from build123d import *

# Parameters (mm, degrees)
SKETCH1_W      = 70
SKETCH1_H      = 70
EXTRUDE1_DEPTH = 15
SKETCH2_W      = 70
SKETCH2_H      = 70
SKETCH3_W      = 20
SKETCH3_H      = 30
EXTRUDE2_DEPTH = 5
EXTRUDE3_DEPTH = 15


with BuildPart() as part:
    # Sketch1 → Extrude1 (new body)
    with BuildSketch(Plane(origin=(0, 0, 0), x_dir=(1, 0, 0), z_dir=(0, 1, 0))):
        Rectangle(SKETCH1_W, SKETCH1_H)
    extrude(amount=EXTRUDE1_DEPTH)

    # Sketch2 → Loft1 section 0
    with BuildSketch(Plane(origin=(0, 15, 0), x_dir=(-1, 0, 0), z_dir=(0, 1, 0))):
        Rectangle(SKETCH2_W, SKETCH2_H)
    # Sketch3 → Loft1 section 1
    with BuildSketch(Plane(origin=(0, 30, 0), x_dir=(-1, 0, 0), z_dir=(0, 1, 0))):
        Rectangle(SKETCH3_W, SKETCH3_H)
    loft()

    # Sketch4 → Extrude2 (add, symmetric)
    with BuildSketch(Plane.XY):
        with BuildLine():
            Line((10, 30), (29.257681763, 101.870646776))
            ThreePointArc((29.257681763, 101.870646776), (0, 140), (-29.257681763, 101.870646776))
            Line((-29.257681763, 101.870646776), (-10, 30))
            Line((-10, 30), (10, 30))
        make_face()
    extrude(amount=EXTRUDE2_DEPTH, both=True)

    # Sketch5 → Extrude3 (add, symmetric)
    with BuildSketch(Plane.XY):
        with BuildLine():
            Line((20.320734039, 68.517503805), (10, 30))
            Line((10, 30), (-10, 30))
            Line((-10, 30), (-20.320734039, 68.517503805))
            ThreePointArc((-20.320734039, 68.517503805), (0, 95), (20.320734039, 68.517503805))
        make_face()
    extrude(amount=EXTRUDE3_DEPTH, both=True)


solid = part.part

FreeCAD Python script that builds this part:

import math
import FreeCAD as App
import Part
import Sketcher
from FreeCAD import Vector
Q = App.Units.Quantity


def add_polygon(sketch, points):
    """Adds a closed chain of lines whose ends are joined by coincident constraints."""
    first, n = sketch.GeometryCount, len(points)
    for a, b in zip(points, points[1:] + points[:1]):
        sketch.addGeometry(Part.LineSegment(App.Vector(*a, 0), App.Vector(*b, 0)), False)
    for i in range(n):
        sketch.addConstraint(Sketcher.Constraint("Coincident", first + i, 2, first + (i + 1) % n, 1))

doc = App.newDocument("Part")
params = doc.addObject("Spreadsheet::Sheet", "Params")
for row, (alias, value) in enumerate([
    ("sketch1_width", "70 mm"),
    ("pad1_length", "15 mm"),
    ("sketch2_width", "70 mm"),
    ("sketch3_width", "20 mm"),
    ("sketch3_height", "30 mm"),
    ("sketch4_width", "20 mm"),
    ("pad2_length", "10 mm"),
    ("sketch5_width", "20 mm"),
    ("pad3_length", "30 mm"),
], start=1):
    params.set(f"A{row}", alias)
    params.set(f"B{row}", "=" + value)
    params.setAlias(f"B{row}", alias)

body = doc.addObject("PartDesign::Body", "Body")

# Sketch on XZ plane
sketch1 = body.newObject("Sketcher::SketchObject", "Sketch")
sketch1.AttachmentSupport = (doc.getObject("XZ_Plane"), [""])
sketch1.MapMode = "FlatFace"
add_polygon(sketch1, [(-35, -35), (-35, 35), (35, 35), (35, -35)])  # lines 0-3
sketch1.addConstraint(Sketcher.Constraint("Vertical", 0))
sketch1.addConstraint(Sketcher.Constraint("Horizontal", 1))
sketch1.addConstraint(Sketcher.Constraint("Vertical", 2))
sketch1.addConstraint(Sketcher.Constraint("Horizontal", 3))
sketch1.addConstraint(Sketcher.Constraint("Symmetric", 0, 2, 2, 2, -1, 1))
sketch1.addConstraint(Sketcher.Constraint("Equal", 3, 0))
sketch1.addConstraint(Sketcher.Constraint("DistanceX", 1, 1, 1, 2, 70.0))
sketch1.setExpression("Constraints[10]", "Params.sketch1_width")
pad1 = body.newObject("PartDesign::Pad", "Pad")
pad1.Profile = sketch1
pad1.setExpression("Length", "Params.pad1_length")
pad1.Reversed = True

# Sketch on XZ plane
sketch2 = body.newObject("Sketcher::SketchObject", "Sketch001")
sketch2.AttachmentSupport = (doc.getObject("XZ_Plane"), [""])
sketch2.MapMode = "FlatFace"
sketch2.AttachmentOffset = App.Placement(Vector(0, 0, -15), App.Rotation())
add_polygon(sketch2, [(35, 35), (35, -35), (-35, -35), (-35, 35)])  # lines 0-3
sketch2.addConstraint(Sketcher.Constraint("Vertical", 0))
sketch2.addConstraint(Sketcher.Constraint("Horizontal", 1))
sketch2.addConstraint(Sketcher.Constraint("Vertical", 2))
sketch2.addConstraint(Sketcher.Constraint("Horizontal", 3))
sketch2.addConstraint(Sketcher.Constraint("Symmetric", 0, 2, 2, 2, -1, 1))
sketch2.addConstraint(Sketcher.Constraint("Equal", 3, 0))
sketch2.addConstraint(Sketcher.Constraint("DistanceX", 1, 2, 1, 1, 70.0))
sketch2.setExpression("Constraints[10]", "Params.sketch2_width")

# Sketch on XZ plane
sketch3 = body.newObject("Sketcher::SketchObject", "Sketch002")
sketch3.AttachmentSupport = (doc.getObject("XZ_Plane"), [""])
sketch3.MapMode = "FlatFace"
sketch3.AttachmentOffset = App.Placement(Vector(0, 0, -30), App.Rotation())
add_polygon(sketch3, [(10, 15), (10, -15), (-10, -15), (-10, 15)])  # lines 0-3
sketch3.addConstraint(Sketcher.Constraint("Vertical", 0))
sketch3.addConstraint(Sketcher.Constraint("Horizontal", 1))
sketch3.addConstraint(Sketcher.Constraint("Vertical", 2))
sketch3.addConstraint(Sketcher.Constraint("Horizontal", 3))
sketch3.addConstraint(Sketcher.Constraint("Symmetric", 0, 2, 2, 2, -1, 1))
sketch3.addConstraint(Sketcher.Constraint("DistanceX", 1, 2, 1, 1, 20.0))
sketch3.addConstraint(Sketcher.Constraint("DistanceY", 0, 2, 0, 1, 30.0))
sketch3.setExpression("Constraints[9]", "Params.sketch3_width")
sketch3.setExpression("Constraints[10]", "Params.sketch3_height")

additiveloft = body.newObject("PartDesign::AdditiveLoft", "AdditiveLoft")
additiveloft.Profile = sketch2
additiveloft.Sections = [sketch3]

# Sketch on XY plane
sketch4 = body.newObject("Sketcher::SketchObject", "Sketch003")
sketch4.AttachmentSupport = (doc.getObject("XY_Plane"), [""])
sketch4.MapMode = "FlatFace"
sketch4.addGeometry(Part.LineSegment(Vector(10, 30, 0), Vector(29, 102, 0)), False)
sketch4.addGeometry(Part.ArcOfCircle(Part.Circle(Vector(0, 110, 0), Vector(0, 0, 1), 30), math.radians(-15), math.radians(195)), False)
sketch4.addGeometry(Part.LineSegment(Vector(-29, 102, 0), Vector(-10, 30, 0)), False)
sketch4.addGeometry(Part.LineSegment(Vector(-10, 30, 0), Vector(10, 30, 0)), False)
sketch4.addConstraint(Sketcher.Constraint("Tangent", 0, 2, 1, 1))
sketch4.addConstraint(Sketcher.Constraint("Tangent", 1, 2, 2, 1))
sketch4.addConstraint(Sketcher.Constraint("Coincident", 2, 2, 3, 1))
sketch4.addConstraint(Sketcher.Constraint("Coincident", 3, 2, 0, 1))
sketch4.addConstraint(Sketcher.Constraint("Horizontal", 3))
sketch4.addConstraint(Sketcher.Constraint("Symmetric", 0, 2, 1, 2, -2))
sketch4.addConstraint(Sketcher.Constraint("DistanceX", 3, 1, 3, 2, 20.0))
sketch4.addConstraint(Sketcher.Constraint("Angle", 0, Q("75 deg")))
sketch4.addConstraint(Sketcher.Constraint("DistanceY", -1, 1, 2, 2, 30.0))
sketch4.addConstraint(Sketcher.Constraint("Radius", 1, 30.289781))
sketch4.setExpression("Constraints[6]", "Params.sketch4_width")
pad2 = body.newObject("PartDesign::Pad", "Pad001")
pad2.Profile = sketch4
pad2.setExpression("Length", "Params.pad2_length")
pad2.Midplane = True

# Sketch on XY plane
sketch5 = body.newObject("Sketcher::SketchObject", "Sketch004")
sketch5.AttachmentSupport = (doc.getObject("XY_Plane"), [""])
sketch5.MapMode = "FlatFace"
sketch5.addGeometry(Part.LineSegment(Vector(10, 30, 0), Vector(20, 69, 0)), False)
sketch5.addGeometry(Part.ArcOfCircle(Part.Circle(Vector(0, 74, 0), Vector(0, 0, 1), 21), math.radians(-15), math.radians(195)), False)
sketch5.addGeometry(Part.LineSegment(Vector(-20, 69, 0), Vector(-10, 30, 0)), False)
sketch5.addGeometry(Part.LineSegment(Vector(-10, 30, 0), Vector(10, 30, 0)), False)
sketch5.addConstraint(Sketcher.Constraint("Tangent", 0, 2, 1, 1))
sketch5.addConstraint(Sketcher.Constraint("Tangent", 1, 2, 2, 1))
sketch5.addConstraint(Sketcher.Constraint("Coincident", 2, 2, 3, 1))
sketch5.addConstraint(Sketcher.Constraint("Coincident", 3, 2, 0, 1))
sketch5.addConstraint(Sketcher.Constraint("Horizontal", 3))
sketch5.addConstraint(Sketcher.Constraint("Symmetric", 0, 2, 1, 2, -2))
sketch5.addConstraint(Sketcher.Constraint("DistanceX", 3, 1, 3, 2, 20.0))
sketch5.addConstraint(Sketcher.Constraint("Angle", 0, Q("75 deg")))
sketch5.addConstraint(Sketcher.Constraint("DistanceY", -1, 1, 2, 2, 30.0))
sketch5.addConstraint(Sketcher.Constraint("Radius", 1, 21.037572))
sketch5.setExpression("Constraints[6]", "Params.sketch5_width")
pad3 = body.newObject("PartDesign::Pad", "Pad002")
pad3.Profile = sketch5
pad3.setExpression("Length", "Params.pad3_length")
pad3.Midplane = True

doc.recompute()
